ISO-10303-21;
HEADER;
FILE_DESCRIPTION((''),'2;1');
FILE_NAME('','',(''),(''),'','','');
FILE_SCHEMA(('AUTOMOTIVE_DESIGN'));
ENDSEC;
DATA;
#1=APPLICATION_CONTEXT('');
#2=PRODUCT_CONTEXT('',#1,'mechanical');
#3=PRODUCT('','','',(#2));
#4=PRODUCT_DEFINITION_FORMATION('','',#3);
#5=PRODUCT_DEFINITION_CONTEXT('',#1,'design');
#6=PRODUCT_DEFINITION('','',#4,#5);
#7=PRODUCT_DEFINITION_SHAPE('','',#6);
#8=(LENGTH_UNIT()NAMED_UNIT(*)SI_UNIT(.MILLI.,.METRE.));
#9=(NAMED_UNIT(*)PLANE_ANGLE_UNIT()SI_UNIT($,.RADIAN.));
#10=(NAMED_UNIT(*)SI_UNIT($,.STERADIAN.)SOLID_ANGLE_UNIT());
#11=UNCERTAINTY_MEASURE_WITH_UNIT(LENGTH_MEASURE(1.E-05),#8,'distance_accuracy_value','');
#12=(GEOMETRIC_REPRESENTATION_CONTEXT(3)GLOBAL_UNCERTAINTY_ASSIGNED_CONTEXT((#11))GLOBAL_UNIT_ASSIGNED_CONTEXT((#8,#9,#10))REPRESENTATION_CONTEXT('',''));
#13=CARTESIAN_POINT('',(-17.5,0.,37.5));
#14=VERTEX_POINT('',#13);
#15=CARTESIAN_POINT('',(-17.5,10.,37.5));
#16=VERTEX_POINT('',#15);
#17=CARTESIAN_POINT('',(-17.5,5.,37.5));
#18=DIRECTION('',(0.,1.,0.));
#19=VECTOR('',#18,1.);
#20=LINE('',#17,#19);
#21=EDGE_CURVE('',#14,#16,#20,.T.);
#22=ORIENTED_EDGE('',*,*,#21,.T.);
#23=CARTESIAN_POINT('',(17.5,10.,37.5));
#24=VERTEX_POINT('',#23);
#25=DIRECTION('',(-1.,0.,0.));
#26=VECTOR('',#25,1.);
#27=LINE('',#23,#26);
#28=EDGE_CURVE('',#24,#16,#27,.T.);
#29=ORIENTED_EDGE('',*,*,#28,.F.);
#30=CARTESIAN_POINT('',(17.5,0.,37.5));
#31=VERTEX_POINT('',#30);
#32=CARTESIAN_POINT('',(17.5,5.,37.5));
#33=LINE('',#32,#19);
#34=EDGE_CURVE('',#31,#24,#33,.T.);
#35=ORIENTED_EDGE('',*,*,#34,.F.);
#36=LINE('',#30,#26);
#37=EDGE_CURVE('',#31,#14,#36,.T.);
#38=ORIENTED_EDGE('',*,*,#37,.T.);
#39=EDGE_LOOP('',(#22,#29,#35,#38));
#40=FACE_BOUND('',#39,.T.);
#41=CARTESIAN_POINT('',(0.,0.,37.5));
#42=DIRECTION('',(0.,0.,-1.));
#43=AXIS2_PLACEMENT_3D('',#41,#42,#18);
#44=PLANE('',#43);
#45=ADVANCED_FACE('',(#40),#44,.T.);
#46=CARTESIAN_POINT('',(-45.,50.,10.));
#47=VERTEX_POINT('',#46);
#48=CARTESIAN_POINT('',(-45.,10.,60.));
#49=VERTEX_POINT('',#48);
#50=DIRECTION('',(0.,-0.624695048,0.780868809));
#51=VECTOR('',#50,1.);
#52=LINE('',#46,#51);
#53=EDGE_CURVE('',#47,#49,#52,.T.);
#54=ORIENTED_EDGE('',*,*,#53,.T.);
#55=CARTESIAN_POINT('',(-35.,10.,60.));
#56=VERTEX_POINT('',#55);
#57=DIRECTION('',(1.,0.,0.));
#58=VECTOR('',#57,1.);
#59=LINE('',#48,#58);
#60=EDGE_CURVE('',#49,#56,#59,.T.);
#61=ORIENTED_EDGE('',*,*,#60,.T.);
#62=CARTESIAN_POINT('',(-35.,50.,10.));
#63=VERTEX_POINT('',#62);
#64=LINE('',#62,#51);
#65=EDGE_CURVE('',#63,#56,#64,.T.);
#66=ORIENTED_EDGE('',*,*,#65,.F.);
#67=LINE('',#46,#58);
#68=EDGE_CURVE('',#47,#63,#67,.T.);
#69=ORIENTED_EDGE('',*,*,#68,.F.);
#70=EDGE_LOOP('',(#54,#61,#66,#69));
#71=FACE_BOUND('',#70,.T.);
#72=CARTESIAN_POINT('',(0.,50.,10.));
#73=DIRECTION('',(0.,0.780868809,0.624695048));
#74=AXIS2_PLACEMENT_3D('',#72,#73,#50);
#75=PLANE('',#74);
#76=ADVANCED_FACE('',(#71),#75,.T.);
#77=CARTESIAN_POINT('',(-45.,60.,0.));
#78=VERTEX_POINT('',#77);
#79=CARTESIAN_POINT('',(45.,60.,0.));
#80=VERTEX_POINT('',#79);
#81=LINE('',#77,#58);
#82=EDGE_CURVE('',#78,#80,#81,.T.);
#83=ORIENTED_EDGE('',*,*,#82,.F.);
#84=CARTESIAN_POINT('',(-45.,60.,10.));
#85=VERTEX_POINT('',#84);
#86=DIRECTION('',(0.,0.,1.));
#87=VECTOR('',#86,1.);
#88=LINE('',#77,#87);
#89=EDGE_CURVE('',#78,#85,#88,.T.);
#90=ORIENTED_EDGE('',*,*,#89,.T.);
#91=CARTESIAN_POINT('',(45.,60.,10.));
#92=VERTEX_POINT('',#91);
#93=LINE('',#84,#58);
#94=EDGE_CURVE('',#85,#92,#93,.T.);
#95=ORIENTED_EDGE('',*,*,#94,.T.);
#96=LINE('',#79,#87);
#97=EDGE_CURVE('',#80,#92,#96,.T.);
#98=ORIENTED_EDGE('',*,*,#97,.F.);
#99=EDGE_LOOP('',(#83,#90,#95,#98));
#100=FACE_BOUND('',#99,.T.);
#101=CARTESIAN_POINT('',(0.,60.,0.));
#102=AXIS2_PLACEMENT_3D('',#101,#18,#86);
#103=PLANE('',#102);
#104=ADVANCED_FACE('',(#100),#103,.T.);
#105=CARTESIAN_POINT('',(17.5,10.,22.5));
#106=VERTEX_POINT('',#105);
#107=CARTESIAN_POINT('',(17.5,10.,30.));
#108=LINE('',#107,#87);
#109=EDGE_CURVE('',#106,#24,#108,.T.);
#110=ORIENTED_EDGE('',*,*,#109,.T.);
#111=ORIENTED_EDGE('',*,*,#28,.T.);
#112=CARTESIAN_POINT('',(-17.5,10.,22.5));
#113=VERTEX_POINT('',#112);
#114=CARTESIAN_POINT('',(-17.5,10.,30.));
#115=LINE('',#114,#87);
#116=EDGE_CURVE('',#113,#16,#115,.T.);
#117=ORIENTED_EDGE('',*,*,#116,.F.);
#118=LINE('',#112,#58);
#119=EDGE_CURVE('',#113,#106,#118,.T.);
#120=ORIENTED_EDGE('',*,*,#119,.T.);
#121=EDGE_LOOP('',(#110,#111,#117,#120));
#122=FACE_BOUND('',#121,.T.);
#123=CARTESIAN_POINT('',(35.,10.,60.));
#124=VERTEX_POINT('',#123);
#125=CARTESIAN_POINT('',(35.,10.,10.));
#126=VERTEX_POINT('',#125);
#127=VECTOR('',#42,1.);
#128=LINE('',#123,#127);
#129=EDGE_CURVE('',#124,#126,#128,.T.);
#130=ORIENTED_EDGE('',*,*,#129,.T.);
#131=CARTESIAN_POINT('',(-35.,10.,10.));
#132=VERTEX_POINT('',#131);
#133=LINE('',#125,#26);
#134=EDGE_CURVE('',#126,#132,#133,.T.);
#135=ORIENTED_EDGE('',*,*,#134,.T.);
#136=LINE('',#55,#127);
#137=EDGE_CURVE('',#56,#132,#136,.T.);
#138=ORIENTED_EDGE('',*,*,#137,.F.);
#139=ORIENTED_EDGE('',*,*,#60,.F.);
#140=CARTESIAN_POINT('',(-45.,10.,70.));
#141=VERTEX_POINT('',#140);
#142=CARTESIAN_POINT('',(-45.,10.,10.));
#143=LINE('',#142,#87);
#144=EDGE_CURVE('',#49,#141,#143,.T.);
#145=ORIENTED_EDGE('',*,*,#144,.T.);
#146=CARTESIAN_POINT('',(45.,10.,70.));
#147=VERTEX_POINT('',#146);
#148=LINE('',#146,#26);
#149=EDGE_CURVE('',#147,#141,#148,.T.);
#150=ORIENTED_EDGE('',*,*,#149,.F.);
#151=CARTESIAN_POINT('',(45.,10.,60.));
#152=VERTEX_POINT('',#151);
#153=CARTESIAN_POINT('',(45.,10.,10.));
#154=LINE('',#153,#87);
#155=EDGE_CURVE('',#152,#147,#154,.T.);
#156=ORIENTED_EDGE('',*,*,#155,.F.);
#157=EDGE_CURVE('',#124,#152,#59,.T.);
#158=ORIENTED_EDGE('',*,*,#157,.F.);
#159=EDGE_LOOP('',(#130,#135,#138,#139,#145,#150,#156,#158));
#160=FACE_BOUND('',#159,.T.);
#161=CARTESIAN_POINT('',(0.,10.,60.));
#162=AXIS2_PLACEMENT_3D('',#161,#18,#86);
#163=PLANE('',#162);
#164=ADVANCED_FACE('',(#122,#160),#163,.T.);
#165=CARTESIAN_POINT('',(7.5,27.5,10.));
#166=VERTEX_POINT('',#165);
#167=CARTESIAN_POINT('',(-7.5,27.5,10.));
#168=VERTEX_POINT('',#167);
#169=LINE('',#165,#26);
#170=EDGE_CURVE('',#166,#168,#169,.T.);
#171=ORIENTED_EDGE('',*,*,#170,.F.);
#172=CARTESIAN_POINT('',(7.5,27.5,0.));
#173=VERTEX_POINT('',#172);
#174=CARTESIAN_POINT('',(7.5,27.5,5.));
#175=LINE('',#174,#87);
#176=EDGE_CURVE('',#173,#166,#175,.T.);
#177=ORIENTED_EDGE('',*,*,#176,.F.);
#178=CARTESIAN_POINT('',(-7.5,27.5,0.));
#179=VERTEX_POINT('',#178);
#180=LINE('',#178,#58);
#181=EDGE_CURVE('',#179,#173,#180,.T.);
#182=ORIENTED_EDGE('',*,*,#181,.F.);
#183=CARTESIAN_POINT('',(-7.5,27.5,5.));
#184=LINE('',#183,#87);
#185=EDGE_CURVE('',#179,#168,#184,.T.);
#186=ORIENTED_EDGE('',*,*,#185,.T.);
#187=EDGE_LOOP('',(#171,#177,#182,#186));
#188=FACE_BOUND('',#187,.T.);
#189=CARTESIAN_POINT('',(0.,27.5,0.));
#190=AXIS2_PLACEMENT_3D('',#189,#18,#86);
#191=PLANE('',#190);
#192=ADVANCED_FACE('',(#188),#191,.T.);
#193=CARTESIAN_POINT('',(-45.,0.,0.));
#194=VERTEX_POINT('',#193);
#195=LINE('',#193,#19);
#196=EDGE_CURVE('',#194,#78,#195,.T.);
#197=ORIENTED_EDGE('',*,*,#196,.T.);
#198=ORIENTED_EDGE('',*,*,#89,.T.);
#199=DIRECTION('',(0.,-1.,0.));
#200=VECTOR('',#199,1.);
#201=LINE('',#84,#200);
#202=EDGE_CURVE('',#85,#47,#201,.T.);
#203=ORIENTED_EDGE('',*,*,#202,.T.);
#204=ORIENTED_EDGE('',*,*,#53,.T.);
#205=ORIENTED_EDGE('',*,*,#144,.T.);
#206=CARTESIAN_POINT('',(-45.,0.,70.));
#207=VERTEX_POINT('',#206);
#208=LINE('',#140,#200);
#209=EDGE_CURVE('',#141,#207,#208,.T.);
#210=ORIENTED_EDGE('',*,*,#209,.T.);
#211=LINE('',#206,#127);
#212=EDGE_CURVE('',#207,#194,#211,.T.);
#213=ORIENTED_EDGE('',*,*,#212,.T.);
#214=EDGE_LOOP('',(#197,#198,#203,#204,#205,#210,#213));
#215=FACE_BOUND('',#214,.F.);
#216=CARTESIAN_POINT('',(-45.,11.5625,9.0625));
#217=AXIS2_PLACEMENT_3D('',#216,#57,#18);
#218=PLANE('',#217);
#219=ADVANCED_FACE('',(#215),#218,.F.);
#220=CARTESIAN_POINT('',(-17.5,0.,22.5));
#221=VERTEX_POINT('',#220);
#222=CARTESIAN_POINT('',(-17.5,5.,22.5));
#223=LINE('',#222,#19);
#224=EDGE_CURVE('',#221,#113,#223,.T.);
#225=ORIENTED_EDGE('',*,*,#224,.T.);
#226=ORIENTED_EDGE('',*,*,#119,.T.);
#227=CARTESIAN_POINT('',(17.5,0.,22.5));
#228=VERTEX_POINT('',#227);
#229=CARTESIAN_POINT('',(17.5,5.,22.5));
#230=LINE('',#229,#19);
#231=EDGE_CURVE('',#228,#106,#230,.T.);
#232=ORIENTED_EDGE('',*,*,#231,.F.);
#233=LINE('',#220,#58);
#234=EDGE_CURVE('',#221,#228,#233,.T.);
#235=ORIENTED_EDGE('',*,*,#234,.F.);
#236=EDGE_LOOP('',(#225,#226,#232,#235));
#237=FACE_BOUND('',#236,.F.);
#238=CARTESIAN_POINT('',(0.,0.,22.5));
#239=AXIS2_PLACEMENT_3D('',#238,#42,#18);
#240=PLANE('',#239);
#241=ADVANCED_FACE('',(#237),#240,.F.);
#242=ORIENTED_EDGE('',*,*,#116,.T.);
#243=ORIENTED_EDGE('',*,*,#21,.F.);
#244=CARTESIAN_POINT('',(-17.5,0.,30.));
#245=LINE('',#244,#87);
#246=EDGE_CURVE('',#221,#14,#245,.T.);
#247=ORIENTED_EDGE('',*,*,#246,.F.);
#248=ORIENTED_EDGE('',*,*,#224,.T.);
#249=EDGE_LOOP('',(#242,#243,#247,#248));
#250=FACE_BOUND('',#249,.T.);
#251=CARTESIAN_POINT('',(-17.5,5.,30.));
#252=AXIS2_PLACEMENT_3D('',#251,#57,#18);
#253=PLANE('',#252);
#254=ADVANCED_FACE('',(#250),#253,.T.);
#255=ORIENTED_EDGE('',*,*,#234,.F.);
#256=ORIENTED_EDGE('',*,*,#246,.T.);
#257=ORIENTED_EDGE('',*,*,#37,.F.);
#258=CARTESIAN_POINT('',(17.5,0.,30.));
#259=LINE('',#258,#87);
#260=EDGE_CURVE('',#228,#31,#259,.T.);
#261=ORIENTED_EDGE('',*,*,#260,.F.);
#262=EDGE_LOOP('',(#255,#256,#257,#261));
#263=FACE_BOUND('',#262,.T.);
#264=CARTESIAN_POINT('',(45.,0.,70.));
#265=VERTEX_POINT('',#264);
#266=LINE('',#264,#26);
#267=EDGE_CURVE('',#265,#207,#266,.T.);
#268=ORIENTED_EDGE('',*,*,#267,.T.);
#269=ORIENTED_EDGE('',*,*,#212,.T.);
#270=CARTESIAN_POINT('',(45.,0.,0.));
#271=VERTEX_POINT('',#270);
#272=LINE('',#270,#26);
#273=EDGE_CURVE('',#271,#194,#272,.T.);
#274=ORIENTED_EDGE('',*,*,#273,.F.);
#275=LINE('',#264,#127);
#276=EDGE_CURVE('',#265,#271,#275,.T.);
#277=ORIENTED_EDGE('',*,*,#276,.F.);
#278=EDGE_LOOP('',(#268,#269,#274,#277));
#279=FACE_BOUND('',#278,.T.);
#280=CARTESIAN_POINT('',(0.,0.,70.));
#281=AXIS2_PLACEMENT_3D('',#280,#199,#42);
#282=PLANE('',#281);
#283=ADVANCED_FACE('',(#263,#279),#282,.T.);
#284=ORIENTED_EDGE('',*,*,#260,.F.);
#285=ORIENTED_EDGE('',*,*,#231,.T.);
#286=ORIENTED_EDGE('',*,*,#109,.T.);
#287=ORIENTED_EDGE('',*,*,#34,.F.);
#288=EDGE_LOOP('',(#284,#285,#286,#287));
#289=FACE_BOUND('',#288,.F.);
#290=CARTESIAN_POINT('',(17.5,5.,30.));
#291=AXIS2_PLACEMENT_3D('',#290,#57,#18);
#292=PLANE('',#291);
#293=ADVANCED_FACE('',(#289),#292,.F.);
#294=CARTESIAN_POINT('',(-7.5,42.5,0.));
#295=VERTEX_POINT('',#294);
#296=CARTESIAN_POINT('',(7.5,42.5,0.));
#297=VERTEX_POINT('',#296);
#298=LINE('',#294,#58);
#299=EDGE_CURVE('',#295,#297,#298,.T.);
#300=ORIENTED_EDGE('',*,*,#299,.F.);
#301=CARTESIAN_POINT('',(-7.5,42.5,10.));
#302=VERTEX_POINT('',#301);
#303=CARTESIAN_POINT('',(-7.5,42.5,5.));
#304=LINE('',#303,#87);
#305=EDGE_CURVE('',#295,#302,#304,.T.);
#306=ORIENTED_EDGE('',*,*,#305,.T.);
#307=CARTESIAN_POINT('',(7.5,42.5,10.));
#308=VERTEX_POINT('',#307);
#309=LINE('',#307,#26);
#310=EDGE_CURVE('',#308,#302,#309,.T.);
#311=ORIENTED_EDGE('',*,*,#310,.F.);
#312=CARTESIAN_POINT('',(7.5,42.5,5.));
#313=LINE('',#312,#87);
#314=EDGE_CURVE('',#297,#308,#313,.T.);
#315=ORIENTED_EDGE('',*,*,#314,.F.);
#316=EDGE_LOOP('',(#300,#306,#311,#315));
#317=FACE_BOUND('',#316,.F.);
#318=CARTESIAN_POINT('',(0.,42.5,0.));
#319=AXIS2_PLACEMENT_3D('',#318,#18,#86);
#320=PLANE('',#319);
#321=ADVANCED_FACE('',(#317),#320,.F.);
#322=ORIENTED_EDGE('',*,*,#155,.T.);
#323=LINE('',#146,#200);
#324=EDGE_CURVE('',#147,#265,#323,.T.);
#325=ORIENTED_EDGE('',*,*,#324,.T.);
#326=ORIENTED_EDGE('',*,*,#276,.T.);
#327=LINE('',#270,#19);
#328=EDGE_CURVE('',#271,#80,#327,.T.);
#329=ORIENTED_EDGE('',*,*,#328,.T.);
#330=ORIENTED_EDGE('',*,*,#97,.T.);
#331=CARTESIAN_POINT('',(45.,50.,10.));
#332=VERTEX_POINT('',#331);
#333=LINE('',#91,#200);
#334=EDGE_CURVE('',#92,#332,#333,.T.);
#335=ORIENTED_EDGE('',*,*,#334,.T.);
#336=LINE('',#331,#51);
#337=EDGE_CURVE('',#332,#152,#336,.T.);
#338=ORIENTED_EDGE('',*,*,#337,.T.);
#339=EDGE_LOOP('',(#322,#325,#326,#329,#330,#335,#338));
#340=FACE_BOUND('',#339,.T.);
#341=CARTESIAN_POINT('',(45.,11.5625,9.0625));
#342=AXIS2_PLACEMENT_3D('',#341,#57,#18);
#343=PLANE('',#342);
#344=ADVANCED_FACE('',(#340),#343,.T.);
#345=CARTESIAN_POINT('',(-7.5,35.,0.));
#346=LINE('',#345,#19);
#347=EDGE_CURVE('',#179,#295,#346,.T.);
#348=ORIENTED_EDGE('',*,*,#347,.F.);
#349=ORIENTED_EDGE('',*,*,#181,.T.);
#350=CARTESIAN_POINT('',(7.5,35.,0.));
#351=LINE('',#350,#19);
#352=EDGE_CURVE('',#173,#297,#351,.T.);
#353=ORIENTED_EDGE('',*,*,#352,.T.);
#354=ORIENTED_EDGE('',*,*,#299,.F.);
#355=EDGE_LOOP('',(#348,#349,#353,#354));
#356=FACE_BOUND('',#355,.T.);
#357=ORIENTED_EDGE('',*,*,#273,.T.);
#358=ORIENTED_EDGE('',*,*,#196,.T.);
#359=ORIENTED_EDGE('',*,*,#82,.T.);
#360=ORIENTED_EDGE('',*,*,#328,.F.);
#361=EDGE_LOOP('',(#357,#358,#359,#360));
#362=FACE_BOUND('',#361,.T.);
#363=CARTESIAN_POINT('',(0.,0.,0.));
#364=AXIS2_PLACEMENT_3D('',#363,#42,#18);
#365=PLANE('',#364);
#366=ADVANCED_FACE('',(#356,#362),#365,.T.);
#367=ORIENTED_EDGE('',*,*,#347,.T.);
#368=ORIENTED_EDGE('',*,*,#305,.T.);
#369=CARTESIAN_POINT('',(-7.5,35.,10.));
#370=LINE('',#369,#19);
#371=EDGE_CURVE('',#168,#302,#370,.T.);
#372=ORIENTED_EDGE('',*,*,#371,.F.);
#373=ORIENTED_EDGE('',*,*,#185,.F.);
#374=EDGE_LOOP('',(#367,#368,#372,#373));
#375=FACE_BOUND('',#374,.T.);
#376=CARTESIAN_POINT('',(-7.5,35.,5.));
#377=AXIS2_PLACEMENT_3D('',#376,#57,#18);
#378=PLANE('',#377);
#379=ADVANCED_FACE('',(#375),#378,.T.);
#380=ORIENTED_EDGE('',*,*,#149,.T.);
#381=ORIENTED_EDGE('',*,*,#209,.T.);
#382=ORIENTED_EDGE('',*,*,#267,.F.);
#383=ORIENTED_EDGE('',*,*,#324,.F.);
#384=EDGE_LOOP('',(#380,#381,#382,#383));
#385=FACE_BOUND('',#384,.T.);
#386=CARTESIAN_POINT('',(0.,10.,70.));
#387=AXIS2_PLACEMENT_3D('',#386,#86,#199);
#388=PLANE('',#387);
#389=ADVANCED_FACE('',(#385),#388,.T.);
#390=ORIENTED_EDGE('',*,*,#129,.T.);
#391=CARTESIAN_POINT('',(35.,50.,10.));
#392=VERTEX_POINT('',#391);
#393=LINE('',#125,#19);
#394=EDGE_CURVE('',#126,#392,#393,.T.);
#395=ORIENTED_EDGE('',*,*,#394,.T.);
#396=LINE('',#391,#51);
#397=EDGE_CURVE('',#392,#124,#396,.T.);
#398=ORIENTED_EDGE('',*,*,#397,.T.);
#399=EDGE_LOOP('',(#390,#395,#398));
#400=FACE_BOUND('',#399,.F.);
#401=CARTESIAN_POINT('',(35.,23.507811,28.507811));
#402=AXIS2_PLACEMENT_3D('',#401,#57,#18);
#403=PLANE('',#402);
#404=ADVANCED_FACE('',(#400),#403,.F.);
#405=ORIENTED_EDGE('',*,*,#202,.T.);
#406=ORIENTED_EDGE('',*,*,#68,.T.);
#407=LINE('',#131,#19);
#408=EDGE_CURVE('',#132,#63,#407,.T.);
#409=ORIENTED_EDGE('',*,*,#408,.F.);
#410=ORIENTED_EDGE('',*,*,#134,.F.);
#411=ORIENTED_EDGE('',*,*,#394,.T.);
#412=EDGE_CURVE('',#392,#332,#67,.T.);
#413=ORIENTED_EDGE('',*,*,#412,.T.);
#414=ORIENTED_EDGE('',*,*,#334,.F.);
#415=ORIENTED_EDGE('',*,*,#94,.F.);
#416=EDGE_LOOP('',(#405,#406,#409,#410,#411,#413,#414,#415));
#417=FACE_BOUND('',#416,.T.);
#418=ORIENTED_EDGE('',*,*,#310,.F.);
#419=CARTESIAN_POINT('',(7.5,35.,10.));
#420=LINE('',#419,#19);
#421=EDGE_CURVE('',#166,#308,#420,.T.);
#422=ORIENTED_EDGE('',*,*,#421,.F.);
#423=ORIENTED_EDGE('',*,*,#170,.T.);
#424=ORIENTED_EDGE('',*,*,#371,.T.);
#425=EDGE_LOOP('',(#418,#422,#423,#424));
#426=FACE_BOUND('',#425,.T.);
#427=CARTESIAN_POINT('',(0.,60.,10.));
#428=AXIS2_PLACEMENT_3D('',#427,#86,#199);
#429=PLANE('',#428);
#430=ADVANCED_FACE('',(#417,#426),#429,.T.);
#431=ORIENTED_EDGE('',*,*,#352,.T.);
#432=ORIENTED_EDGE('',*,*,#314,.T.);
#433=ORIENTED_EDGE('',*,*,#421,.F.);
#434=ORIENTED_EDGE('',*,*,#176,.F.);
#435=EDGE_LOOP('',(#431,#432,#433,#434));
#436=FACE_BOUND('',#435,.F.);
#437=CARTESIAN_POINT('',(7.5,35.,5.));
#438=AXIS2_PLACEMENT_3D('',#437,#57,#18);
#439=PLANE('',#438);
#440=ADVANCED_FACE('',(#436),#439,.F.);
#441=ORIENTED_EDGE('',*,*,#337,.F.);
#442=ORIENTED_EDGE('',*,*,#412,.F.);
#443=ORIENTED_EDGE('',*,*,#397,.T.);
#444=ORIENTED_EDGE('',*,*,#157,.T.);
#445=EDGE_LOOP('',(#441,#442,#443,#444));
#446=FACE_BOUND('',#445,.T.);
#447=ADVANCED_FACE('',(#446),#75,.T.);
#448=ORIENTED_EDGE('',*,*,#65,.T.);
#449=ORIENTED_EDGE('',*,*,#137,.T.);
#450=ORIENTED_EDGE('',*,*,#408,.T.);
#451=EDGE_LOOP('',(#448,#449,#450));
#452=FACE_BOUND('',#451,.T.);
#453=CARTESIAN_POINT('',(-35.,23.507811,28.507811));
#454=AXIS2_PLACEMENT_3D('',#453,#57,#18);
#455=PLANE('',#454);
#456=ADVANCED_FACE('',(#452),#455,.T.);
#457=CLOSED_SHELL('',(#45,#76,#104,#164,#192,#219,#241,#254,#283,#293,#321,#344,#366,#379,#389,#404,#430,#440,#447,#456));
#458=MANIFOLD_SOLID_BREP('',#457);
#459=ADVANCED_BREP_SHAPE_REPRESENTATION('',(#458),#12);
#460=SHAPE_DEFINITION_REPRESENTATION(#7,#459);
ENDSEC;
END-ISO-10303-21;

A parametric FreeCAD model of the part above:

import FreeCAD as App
import Part
import Sketcher

V = App.Vector


def add_polygon(sketch, points):
    """Adds a closed chain of lines whose ends are joined by coincident constraints."""
    first, n = sketch.GeometryCount, len(points)
    for a, b in zip(points, points[1:] + points[:1]):
        sketch.addGeometry(Part.LineSegment(App.Vector(*a, 0), App.Vector(*b, 0)), False)
    for i in range(n):
        sketch.addConstraint(Sketcher.Constraint("Coincident", first + i, 2, first + (i + 1) % n, 1))

doc = App.newDocument("Part")
body = doc.addObject("PartDesign::Body", "Body")

# Sketch on YZ plane
sketch1 = doc.addObject("Sketcher::SketchObject", "Sketch")
body.addObject(sketch1)
sketch1.AttachmentSupport = (doc.YZ_Plane, [""])
sketch1.MapMode = "FlatFace"
add_polygon(sketch1, [(0, 0), (60, 0), (60, 10), (50, 10), (10, 60), (10, 70), (0, 70)])  # lines 0-6
sketch1.addConstraint(Sketcher.Constraint("Horizontal", 0))
sketch1.addConstraint(Sketcher.Constraint("Vertical", 1))
sketch1.addConstraint(Sketcher.Constraint("Horizontal", 2))
sketch1.addConstraint(Sketcher.Constraint("Vertical", 4))
sketch1.addConstraint(Sketcher.Constraint("Horizontal", 5))
sketch1.addConstraint(Sketcher.Constraint("Vertical", 6))
sketch1.addConstraint(Sketcher.Constraint("Coincident", 6, 2, -1, 1))
sketch1.addConstraint(Sketcher.Constraint("Equal", 2, 5))
sketch1.addConstraint(Sketcher.Constraint("Equal", 5, 1))
sketch1.addConstraint(Sketcher.Constraint("Equal", 1, 4))
sketch1.addConstraint(Sketcher.Constraint("DistanceX", 0, 1, 0, 2, 60.0))
sketch1.addConstraint(Sketcher.Constraint("DistanceX", 2, 2, 2, 1, 10.0))
sketch1.addConstraint(Sketcher.Constraint("DistanceY", 6, 2, 6, 1, 70.0))
pad1 = doc.addObject("PartDesign::Pad", "Pad")
body.addObject(pad1)
pad1.Profile = sketch1
pad1.Length = 90
pad1.Midplane = True

# Sketch on YZ plane
sketch2 = doc.addObject("Sketcher::SketchObject", "Sketch001")
body.addObject(sketch2)
sketch2.AttachmentSupport = (doc.YZ_Plane, [""])
sketch2.MapMode = "FlatFace"
add_polygon(sketch2, [(10, 10), (50, 10), (10, 60)])  # lines 0-2
sketch2.addConstraint(Sketcher.Constraint("Horizontal", 0))
sketch2.addConstraint(Sketcher.Constraint("Vertical", 2))
sketch2.addConstraint(Sketcher.Constraint("DistanceX", 0, 1, 0, 2, 40.0))
sketch2.addConstraint(Sketcher.Constraint("DistanceY", 2, 2, 2, 1, 50.0))
sketch2.addConstraint(Sketcher.Constraint("DistanceX", -1, 1, 0, 2, 50.0))
sketch2.addConstraint(Sketcher.Constraint("DistanceY", -1, 1, 0, 2, 10.0))
pocket1 = doc.addObject("PartDesign::Pocket", "Pocket")
body.addObject(pocket1)
pocket1.Profile = sketch2
pocket1.Length = 70
pocket1.Midplane = True

# Sketch on YZ plane
sketch3 = doc.addObject("Sketcher::SketchObject", "Sketch002")
body.addObject(sketch3)
sketch3.AttachmentSupport = (doc.YZ_Plane, [""])
sketch3.MapMode = "FlatFace"
add_polygon(sketch3, [(0, 38), (0, 22), (10, 22), (10, 38)])  # lines 0-3
sketch3.addConstraint(Sketcher.Constraint("Vertical", 0))
sketch3.addConstraint(Sketcher.Constraint("Horizontal", 1))
sketch3.addConstraint(Sketcher.Constraint("Vertical", 2))
sketch3.addConstraint(Sketcher.Constraint("Horizontal", 3))
sketch3.addConstraint(Sketcher.Constraint("PointOnObject", 0, 2, -2))
sketch3.addConstraint(Sketcher.Constraint("DistanceX", 1, 1, 1, 2, 10.0))
sketch3.addConstraint(Sketcher.Constraint("DistanceY", 0, 2, 0, 1, 15.0))
sketch3.addConstraint(Sketcher.Constraint("DistanceY", -1, 1, 0, 2, 22.5))
pocket2 = doc.addObject("PartDesign::Pocket", "Pocket001")
body.addObject(pocket2)
pocket2.Profile = sketch3
pocket2.Length = 35
pocket2.Midplane = True

# Sketch on YZ plane
sketch4 = doc.addObject("Sketcher::SketchObject", "Sketch003")
body.addObject(sketch4)
sketch4.AttachmentSupport = (doc.YZ_Plane, [""])
sketch4.MapMode = "FlatFace"
add_polygon(sketch4, [(28, 10), (28, 0), (42, 0), (42, 10)])  # lines 0-3
sketch4.addConstraint(Sketcher.Constraint("Vertical", 0))
sketch4.addConstraint(Sketcher.Constraint("Horizontal", 1))
sketch4.addConstraint(Sketcher.Constraint("Vertical", 2))
sketch4.addConstraint(Sketcher.Constraint("Horizontal", 3))
sketch4.addConstraint(Sketcher.Constraint("PointOnObject", 0, 2, -1))
sketch4.addConstraint(Sketcher.Constraint("DistanceX", 1, 1, 1, 2, 15.0))
sketch4.addConstraint(Sketcher.Constraint("DistanceY", 0, 2, 0, 1, 10.0))
sketch4.addConstraint(Sketcher.Constraint("DistanceX", -1, 1, 0, 2, 27.5))
pocket3 = doc.addObject("PartDesign::Pocket", "Pocket002")
body.addObject(pocket3)
pocket3.Profile = sketch4
pocket3.Length = 15
pocket3.Midplane = True

doc.recompute()
